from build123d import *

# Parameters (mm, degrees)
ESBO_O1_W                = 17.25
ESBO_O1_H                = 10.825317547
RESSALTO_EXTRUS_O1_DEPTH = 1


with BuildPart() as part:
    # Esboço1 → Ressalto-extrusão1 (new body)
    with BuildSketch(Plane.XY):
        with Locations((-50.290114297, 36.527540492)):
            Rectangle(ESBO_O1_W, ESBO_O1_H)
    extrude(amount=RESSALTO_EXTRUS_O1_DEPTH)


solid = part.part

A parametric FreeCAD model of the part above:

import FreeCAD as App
import Part
import Sketcher

V = App.Vector


def add_polygon(sketch, points):
    """Adds a closed chain of lines whose ends are joined by coincident constraints."""
    first, n = sketch.GeometryCount, len(points)
    for a, b in zip(points, points[1:] + points[:1]):
        sketch.addGeometry(Part.LineSegment(App.Vector(*a, 0), App.Vector(*b, 0)), False)
    for i in range(n):
        sketch.addConstraint(Sketcher.Constraint("Coincident", first + i, 2, first + (i + 1) % n, 1))

doc = App.newDocument("Part")
body = doc.addObject("PartDesign::Body", "Body")

# Sketch on XY plane
sketch1 = body.newObject("Sketcher::SketchObject", "Sketch")
sketch1.AttachmentSupport = (doc.getObject("XY_Plane"), [""])
sketch1.MapMode = "FlatFace"
add_polygon(sketch1, [(-59, 42), (-59, 31), (-42, 31), (-42, 42)])  # lines 0-3
sketch1.addConstraint([
    Sketcher.Constraint("Vertical", 0),
    Sketcher.Constraint("Horizontal", 1),
    Sketcher.Constraint("Vertical", 2),
    Sketcher.Constraint("Horizontal", 3),
    Sketcher.Constraint("DistanceX", 1, 1, 1, 2, 17.25),
    Sketcher.Constraint("DistanceY", -1, 1, 2, 2, 41.940199),
    Sketcher.Constraint("DistanceY", 0, 2, 0, 1, 10.825318),
    Sketcher.Constraint("DistanceX", 0, 2, -1, 1, 58.915114),
])
pad1 = body.newObject("PartDesign::Pad", "Pad")
pad1.Profile = sketch1
pad1.Length = 1

doc.recompute()
